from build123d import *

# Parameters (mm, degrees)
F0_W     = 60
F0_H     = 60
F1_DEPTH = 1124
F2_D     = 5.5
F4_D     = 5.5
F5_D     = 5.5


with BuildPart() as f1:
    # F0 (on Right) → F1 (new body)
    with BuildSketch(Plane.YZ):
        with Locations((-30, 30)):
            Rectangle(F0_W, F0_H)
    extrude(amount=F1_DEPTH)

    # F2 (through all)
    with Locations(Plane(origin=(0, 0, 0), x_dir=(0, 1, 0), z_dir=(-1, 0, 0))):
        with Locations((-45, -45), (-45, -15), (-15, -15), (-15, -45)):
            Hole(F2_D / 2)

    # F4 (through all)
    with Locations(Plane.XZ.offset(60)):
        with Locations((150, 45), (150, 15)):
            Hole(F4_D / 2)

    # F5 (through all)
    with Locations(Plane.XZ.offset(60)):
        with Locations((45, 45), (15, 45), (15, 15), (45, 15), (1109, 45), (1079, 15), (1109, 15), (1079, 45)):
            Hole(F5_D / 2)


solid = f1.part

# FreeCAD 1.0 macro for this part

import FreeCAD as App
import Part
import Sketcher

V = App.Vector


def add_polygon(sketch, points):
    """Adds a closed chain of lines whose ends are joined by coincident constraints."""
    first, n = sketch.GeometryCount, len(points)
    for a, b in zip(points, points[1:] + points[:1]):
        sketch.addGeometry(Part.LineSegment(App.Vector(*a, 0), App.Vector(*b, 0)), False)
    for i in range(n):
        sketch.addConstraint(Sketcher.Constraint("Coincident", first + i, 2, first + (i + 1) % n, 1))

doc = App.newDocument("Part")
body = doc.addObject("PartDesign::Body", "Body")

# Sketch on YZ plane
sketch1 = body.newObject("Sketcher::SketchObject", "Sketch")
sketch1.AttachmentSupport = (doc.getObject("YZ_Plane"), [""])
sketch1.MapMode = "FlatFace"
add_polygon(sketch1, [(-60, 60), (-60, 0), (0, 0), (0, 60)])  # lines 0-3
sketch1.addConstraint(Sketcher.Constraint("Vertical", 0))
sketch1.addConstraint(Sketcher.Constraint("Horizontal", 1))
sketch1.addConstraint(Sketcher.Constraint("Vertical", 2))
sketch1.addConstraint(Sketcher.Constraint("Horizontal", 3))
sketch1.addConstraint(Sketcher.Constraint("Coincident", 1, 2, -1, 1))
sketch1.addConstraint(Sketcher.Constraint("Equal", 3, 0))
sketch1.addConstraint(Sketcher.Constraint("DistanceX", 1, 1, 1, 2, 60.0))
pad1 = body.newObject("PartDesign::Pad", "Pad")
pad1.Profile = sketch1
pad1.Length = 1124

# Sketch on YZ plane
sketch2 = body.newObject("Sketcher::SketchObject", "Sketch001")
sketch2.AttachmentSupport = (doc.getObject("YZ_Plane"), [""])
sketch2.MapMode = "FlatFace"
sketch2.addGeometry(Part.Circle(V(-45, 45, 0), V(0, 0, 1), 2.8), False)
sketch2.addGeometry(Part.Circle(V(-45, 15, 0), V(0, 0, 1), 2.8), False)
sketch2.addGeometry(Part.Circle(V(-15, 15, 0), V(0, 0, 1), 2.8), False)
sketch2.addGeometry(Part.Circle(V(-15, 45, 0), V(0, 0, 1), 2.8), False)
sketch2.addConstraint(Sketcher.Constraint("Equal", 0, 1))
sketch2.addConstraint(Sketcher.Constraint("Equal", 1, 2))
sketch2.addConstraint(Sketcher.Constraint("Equal", 2, 3))
sketch2.addConstraint(Sketcher.Constraint("Horizontal", 1, 3, 2, 3))
sketch2.addConstraint(Sketcher.Constraint("Horizontal", 0, 3, 3, 3))
sketch2.addConstraint(Sketcher.Constraint("Vertical", 0, 3, 1, 3))
sketch2.addConstraint(Sketcher.Constraint("Vertical", 2, 3, 3, 3))
sketch2.addConstraint(Sketcher.Constraint("Diameter", 0, 5.5))
sketch2.addConstraint(Sketcher.Constraint("DistanceX", 0, 3, -1, 1, 45.0))
sketch2.addConstraint(Sketcher.Constraint("DistanceY", -1, 1, 0, 3, 45.0))
sketch2.addConstraint(Sketcher.Constraint("DistanceY", -1, 1, 1, 3, 15.0))
sketch2.addConstraint(Sketcher.Constraint("DistanceX", 2, 3, -1, 1, 15.0))
doc.recompute()
hole = body.newObject("PartDesign::Hole", "Hole")
hole.Profile = sketch2
hole.ThreadType = "None"
hole.Diameter = 5.5
hole.DepthType = "ThroughAll"
hole.Reversed = True

# Sketch on XZ plane
sketch3 = body.newObject("Sketcher::SketchObject", "Sketch002")
sketch3.AttachmentSupport = (doc.getObject("XZ_Plane"), [""])
sketch3.MapMode = "FlatFace"
sketch3.AttachmentOffset = App.Placement(V(0, 0, 60), App.Rotation())
sketch3.addGeometry(Part.Circle(V(150, 45, 0), V(0, 0, 1), 2.8), False)
sketch3.addGeometry(Part.Circle(V(150, 15, 0), V(0, 0, 1), 2.8), False)
sketch3.addConstraint(Sketcher.Constraint("Equal", 0, 1))
sketch3.addConstraint(Sketcher.Constraint("Vertical", 0, 3, 1, 3))
sketch3.addConstraint(Sketcher.Constraint("Diameter", 0, 5.5))
sketch3.addConstraint(Sketcher.Constraint("DistanceX", -1, 1, 0, 3, 150.0))
sketch3.addConstraint(Sketcher.Constraint("DistanceY", -1, 1, 0, 3, 45.0))
sketch3.addConstraint(Sketcher.Constraint("DistanceY", -1, 1, 1, 3, 15.0))
doc.recompute()
hole2 = body.newObject("PartDesign::Hole", "Hole001")
hole2.Profile = sketch3
hole2.ThreadType = "None"
hole2.Diameter = 5.5
hole2.DepthType = "ThroughAll"

# Sketch on XZ plane
sketch4 = body.newObject("Sketcher::SketchObject", "Sketch003")
sketch4.AttachmentSupport = (doc.getObject("XZ_Plane"), [""])
sketch4.MapMode = "FlatFace"
sketch4.AttachmentOffset = App.Placement(V(0, 0, 60), App.Rotation())
sketch4.addGeometry(Part.Circle(V(45, 45, 0), V(0, 0, 1), 2.8), False)
sketch4.addGeometry(Part.Circle(V(15, 45, 0), V(0, 0, 1), 2.8), False)
sketch4.addGeometry(Part.Circle(V(15, 15, 0), V(0, 0, 1), 2.8), False)
sketch4.addGeometry(Part.Circle(V(45, 15, 0), V(0, 0, 1), 2.8), False)
sketch4.addGeometry(Part.Circle(V(1109, 45, 0), V(0, 0, 1), 2.8), False)
sketch4.addGeometry(Part.Circle(V(1079, 15, 0), V(0, 0, 1), 2.8), False)
sketch4.addGeometry(Part.Circle(V(1109, 15, 0), V(0, 0, 1), 2.8), False)
sketch4.addGeometry(Part.Circle(V(1079, 45, 0), V(0, 0, 1), 2.8), False)
sketch4.addConstraint(Sketcher.Constraint("Equal", 0, 1))
sketch4.addConstraint(Sketcher.Constraint("Equal", 1, 2))
sketch4.addConstraint(Sketcher.Constraint("Equal", 2, 3))
sketch4.addConstraint(Sketcher.Constraint("Equal", 3, 4))
sketch4.addConstraint(Sketcher.Constraint("Equal", 4, 5))
sketch4.addConstraint(Sketcher.Constraint("Equal", 5, 6))
sketch4.addConstraint(Sketcher.Constraint("Equal", 6, 7))
sketch4.addConstraint(Sketcher.Constraint("Horizontal", 0, 3, 1, 3))
sketch4.addConstraint(Sketcher.Constraint("Horizontal", 2, 3, 3, 3))
sketch4.addConstraint(Sketcher.Constraint("Horizontal", 1, 3, 4, 3))
sketch4.addConstraint(Sketcher.Constraint("Horizontal", 3, 3, 5, 3))
sketch4.addConstraint(Sketcher.Constraint("Horizontal", 5, 3, 6, 3))
sketch4.addConstraint(Sketcher.Constraint("Horizontal", 4, 3, 7, 3))
sketch4.addConstraint(Sketcher.Constraint("Vertical", 1, 3, 2, 3))
sketch4.addConstraint(Sketcher.Constraint("Vertical", 0, 3, 3, 3))
sketch4.addConstraint(Sketcher.Constraint("Vertical", 4, 3, 6, 3))
sketch4.addConstraint(Sketcher.Constraint("Vertical", 5, 3, 7, 3))
sketch4.addConstraint(Sketcher.Constraint("Diameter", 0, 5.5))
sketch4.addConstraint(Sketcher.Constraint("DistanceX", -1, 1, 0, 3, 45.0))
sketch4.addConstraint(Sketcher.Constraint("DistanceY", -1, 1, 0, 3, 45.0))
sketch4.addConstraint(Sketcher.Constraint("DistanceX", -1, 1, 1, 3, 15.0))
sketch4.addConstraint(Sketcher.Constraint("DistanceY", -1, 1, 2, 3, 15.0))
sketch4.addConstraint(Sketcher.Constraint("DistanceX", -1, 1, 4, 3, 1109.0))
sketch4.addConstraint(Sketcher.Constraint("DistanceX", -1, 1, 5, 3, 1079.0))
doc.recompute()
hole3 = body.newObject("PartDesign::Hole", "Hole002")
hole3.Profile = sketch4
hole3.ThreadType = "None"
hole3.Diameter = 5.5
hole3.DepthType = "ThroughAll"

doc.recompute()
